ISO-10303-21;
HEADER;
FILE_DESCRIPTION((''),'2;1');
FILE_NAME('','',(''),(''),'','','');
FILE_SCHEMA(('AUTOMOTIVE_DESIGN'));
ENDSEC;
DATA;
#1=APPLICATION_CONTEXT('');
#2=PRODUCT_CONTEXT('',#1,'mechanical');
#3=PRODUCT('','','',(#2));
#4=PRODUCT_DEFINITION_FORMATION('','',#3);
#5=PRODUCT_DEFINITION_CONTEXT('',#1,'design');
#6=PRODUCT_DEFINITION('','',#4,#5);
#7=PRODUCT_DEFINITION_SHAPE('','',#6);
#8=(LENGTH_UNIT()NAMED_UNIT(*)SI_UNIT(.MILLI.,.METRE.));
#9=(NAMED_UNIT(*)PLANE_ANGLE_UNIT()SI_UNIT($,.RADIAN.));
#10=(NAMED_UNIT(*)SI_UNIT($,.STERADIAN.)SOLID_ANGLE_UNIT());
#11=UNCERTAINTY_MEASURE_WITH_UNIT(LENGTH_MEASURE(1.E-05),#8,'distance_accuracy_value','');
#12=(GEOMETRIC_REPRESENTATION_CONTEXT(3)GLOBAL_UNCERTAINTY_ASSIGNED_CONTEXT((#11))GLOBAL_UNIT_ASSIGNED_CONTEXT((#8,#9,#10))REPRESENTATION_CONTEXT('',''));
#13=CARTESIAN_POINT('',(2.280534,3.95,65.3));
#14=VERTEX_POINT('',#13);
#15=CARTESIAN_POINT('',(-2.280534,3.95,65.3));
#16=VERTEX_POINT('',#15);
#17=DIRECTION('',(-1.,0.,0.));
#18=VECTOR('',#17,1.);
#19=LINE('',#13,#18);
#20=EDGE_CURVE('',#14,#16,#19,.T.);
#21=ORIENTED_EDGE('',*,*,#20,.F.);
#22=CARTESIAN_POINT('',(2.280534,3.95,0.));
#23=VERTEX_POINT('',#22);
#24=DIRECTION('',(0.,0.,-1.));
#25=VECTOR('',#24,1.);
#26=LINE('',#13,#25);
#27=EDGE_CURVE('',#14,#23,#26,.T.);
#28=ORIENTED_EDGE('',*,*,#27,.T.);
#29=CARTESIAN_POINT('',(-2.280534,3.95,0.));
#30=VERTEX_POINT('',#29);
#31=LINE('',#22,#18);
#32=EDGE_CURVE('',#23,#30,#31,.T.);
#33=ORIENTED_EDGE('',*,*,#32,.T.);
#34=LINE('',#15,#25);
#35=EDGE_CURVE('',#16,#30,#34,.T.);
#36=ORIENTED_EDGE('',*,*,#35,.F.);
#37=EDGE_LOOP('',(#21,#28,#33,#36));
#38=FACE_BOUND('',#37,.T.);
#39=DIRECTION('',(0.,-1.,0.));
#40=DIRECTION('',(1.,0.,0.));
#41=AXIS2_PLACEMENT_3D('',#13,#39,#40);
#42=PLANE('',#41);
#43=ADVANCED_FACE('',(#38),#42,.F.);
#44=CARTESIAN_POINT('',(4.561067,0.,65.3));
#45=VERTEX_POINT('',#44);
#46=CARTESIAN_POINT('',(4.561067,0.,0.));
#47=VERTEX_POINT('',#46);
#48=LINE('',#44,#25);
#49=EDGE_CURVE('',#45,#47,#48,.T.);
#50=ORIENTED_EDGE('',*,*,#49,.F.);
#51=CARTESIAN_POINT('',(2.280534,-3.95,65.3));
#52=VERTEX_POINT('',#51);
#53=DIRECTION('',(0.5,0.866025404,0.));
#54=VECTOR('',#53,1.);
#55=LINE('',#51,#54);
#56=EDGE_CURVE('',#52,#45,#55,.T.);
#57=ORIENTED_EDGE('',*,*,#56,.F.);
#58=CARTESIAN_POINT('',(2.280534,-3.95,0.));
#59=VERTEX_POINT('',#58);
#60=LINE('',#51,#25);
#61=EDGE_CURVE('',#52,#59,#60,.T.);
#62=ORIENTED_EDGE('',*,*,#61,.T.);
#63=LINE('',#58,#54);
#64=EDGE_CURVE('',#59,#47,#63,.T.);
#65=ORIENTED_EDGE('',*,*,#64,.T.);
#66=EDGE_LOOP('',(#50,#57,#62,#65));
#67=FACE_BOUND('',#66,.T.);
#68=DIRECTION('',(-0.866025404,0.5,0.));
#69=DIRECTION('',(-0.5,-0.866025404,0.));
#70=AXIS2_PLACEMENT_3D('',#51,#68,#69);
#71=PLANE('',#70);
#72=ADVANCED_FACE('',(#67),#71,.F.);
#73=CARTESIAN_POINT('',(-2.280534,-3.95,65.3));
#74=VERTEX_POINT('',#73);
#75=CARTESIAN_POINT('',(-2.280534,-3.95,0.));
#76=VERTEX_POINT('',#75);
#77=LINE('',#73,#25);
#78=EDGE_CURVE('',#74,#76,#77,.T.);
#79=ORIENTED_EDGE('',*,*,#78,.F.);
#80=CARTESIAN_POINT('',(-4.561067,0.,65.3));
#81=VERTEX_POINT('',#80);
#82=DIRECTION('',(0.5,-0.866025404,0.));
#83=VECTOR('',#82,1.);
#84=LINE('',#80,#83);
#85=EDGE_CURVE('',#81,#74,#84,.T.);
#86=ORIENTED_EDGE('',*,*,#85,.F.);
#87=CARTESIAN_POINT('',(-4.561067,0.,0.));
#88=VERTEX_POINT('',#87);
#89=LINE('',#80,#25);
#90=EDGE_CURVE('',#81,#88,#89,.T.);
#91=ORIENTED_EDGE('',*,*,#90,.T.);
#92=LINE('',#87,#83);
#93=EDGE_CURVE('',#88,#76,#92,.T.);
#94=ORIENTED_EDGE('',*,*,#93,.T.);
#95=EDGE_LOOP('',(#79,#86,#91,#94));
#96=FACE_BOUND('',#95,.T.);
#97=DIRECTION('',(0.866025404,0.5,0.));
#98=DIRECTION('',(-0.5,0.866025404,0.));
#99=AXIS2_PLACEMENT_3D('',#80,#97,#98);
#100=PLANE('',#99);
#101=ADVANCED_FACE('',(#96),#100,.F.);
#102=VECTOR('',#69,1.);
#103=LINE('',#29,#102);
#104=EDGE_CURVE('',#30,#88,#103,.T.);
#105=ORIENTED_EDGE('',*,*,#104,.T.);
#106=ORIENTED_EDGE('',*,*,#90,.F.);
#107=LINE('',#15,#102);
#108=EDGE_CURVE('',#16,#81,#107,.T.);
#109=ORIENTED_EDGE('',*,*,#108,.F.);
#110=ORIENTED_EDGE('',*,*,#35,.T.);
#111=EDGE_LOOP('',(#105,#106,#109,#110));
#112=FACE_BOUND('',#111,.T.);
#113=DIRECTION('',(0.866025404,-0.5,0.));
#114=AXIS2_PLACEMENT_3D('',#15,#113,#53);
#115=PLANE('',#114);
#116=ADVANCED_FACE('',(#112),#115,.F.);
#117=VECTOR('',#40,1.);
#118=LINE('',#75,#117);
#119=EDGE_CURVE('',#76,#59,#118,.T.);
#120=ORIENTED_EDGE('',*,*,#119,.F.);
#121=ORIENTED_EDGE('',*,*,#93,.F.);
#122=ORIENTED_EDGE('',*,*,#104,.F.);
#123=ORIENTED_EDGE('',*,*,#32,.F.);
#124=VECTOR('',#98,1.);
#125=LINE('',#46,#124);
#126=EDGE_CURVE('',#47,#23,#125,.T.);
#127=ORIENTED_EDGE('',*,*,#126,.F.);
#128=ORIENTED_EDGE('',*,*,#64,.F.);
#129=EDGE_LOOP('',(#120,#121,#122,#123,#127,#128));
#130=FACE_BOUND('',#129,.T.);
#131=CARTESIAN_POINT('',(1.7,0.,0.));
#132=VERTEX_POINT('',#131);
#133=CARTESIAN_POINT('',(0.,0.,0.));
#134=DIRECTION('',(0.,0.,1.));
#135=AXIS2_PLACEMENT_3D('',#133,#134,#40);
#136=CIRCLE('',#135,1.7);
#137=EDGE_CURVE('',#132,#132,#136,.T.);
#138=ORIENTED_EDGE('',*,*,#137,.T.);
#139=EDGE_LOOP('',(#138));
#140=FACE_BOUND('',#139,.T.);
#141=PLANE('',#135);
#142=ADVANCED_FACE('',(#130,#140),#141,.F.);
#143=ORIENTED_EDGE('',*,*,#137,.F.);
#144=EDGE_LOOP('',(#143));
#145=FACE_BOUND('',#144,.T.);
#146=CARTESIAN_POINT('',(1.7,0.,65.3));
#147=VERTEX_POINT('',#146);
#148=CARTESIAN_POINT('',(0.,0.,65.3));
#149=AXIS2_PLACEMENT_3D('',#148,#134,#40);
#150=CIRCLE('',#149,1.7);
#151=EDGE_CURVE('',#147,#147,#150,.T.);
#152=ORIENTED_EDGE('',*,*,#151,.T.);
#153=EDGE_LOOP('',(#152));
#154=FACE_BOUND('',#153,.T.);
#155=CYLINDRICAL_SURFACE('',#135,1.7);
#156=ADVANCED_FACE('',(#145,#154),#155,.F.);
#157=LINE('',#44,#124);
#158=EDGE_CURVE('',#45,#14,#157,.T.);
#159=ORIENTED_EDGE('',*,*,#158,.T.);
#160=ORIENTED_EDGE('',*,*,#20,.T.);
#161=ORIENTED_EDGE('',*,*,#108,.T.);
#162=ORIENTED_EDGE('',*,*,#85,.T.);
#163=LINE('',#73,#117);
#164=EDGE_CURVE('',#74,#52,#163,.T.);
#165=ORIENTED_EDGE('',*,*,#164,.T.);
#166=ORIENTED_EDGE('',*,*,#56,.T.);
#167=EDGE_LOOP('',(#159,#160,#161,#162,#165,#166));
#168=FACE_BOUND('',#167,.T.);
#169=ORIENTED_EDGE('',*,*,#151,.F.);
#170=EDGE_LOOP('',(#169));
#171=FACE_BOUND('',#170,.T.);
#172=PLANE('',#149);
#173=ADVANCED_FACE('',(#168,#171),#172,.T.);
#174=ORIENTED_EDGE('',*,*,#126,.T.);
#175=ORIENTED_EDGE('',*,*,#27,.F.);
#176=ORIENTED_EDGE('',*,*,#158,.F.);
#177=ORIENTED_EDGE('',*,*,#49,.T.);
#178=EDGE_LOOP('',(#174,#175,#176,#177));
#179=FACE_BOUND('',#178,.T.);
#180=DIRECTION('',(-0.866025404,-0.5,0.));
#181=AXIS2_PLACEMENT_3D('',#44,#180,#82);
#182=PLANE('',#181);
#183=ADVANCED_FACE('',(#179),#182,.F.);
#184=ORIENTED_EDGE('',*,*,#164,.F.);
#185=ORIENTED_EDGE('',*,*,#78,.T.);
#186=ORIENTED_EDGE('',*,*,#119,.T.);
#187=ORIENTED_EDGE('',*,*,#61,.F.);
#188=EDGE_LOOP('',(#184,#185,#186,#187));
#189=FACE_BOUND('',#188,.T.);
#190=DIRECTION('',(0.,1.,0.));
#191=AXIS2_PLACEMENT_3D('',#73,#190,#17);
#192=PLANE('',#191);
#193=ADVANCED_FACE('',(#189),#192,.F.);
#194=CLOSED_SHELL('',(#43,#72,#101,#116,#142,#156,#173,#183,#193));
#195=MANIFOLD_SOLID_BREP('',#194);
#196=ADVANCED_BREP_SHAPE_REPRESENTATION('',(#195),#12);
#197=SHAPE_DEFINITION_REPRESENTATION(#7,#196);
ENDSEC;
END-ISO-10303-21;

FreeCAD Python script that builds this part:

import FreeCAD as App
import Part
import Sketcher

V = App.Vector
Q = App.Units.Quantity

doc = App.newDocument("Part")
body = doc.addObject("PartDesign::Body", "Body")

# Sketch on XY plane
sketch1 = body.newObject("Sketcher::SketchObject", "Sketch")
sketch1.AttachmentSupport = (doc.getObject("XY_Plane"), [""])
sketch1.MapMode = "FlatFace"
sketch1.addGeometry([
    Part.LineSegment(V(4.6, 0, 0), V(2.3, 4, 0)),  # 0
    Part.LineSegment(V(2.3, 4, 0), V(-2.3, 4, 0)),  # 1
    Part.LineSegment(V(-2.3, 4, 0), V(-4.6, 0, 0)),  # 2
    Part.LineSegment(V(-4.6, 0, 0), V(-2.3, -4, 0)),  # 3
    Part.LineSegment(V(-2.3, -4, 0), V(2.3, -4, 0)),  # 4
    Part.LineSegment(V(2.3, -4, 0), V(4.6, 0, 0)),  # 5
], False)
sketch1.addConstraint([
    Sketcher.Constraint("Coincident", 0, 2, 1, 1),
    Sketcher.Constraint("Coincident", 1, 2, 2, 1),
    Sketcher.Constraint("Coincident", 2, 2, 3, 1),
    Sketcher.Constraint("Coincident", 3, 2, 4, 1),
    Sketcher.Constraint("Coincident", 4, 2, 5, 1),
    Sketcher.Constraint("Coincident", 5, 2, 0, 1),
    Sketcher.Constraint("Horizontal", 1),
    Sketcher.Constraint("Horizontal", 4),
    Sketcher.Constraint("Symmetric", 0, 2, 3, 2, -1, 1),
    Sketcher.Constraint("Symmetric", 2, 2, 5, 2, -1, 1),
    Sketcher.Constraint("PointOnObject", 2, 2, -1),
    Sketcher.Constraint("Parallel", 2, 5),
    Sketcher.Constraint("Vertical", 1, 2, 3, 2),
    Sketcher.Constraint("Angle", 0, Q("120 deg")),
    Sketcher.Constraint("DistanceY", 3, 2, 1, 2, 7.9),
    Sketcher.Constraint("DistanceX", 2, 2, 0, 2, 6.841601),
])
pad1 = body.newObject("PartDesign::Pad", "Pad")
pad1.Profile = sketch1
pad1.Length = 65.3

# Sketch on XY plane
sketch2 = body.newObject("Sketcher::SketchObject", "Sketch001")
sketch2.AttachmentSupport = (doc.getObject("XY_Plane"), [""])
sketch2.MapMode = "FlatFace"
sketch2.AttachmentOffset = App.Placement(V(0, 0, 65.3), App.Rotation())
sketch2.addGeometry(Part.Circle(V(0, 0, 0), V(0, 0, 1), 1.7), False)
sketch2.addConstraint([
    Sketcher.Constraint("Coincident", 0, 3, -1, 1),
    Sketcher.Constraint("Diameter", 0, 3.4),
])
pocket1 = body.newObject("PartDesign::Pocket", "Pocket")
pocket1.Profile = sketch2
pocket1.Length = 65.3

doc.recompute()
